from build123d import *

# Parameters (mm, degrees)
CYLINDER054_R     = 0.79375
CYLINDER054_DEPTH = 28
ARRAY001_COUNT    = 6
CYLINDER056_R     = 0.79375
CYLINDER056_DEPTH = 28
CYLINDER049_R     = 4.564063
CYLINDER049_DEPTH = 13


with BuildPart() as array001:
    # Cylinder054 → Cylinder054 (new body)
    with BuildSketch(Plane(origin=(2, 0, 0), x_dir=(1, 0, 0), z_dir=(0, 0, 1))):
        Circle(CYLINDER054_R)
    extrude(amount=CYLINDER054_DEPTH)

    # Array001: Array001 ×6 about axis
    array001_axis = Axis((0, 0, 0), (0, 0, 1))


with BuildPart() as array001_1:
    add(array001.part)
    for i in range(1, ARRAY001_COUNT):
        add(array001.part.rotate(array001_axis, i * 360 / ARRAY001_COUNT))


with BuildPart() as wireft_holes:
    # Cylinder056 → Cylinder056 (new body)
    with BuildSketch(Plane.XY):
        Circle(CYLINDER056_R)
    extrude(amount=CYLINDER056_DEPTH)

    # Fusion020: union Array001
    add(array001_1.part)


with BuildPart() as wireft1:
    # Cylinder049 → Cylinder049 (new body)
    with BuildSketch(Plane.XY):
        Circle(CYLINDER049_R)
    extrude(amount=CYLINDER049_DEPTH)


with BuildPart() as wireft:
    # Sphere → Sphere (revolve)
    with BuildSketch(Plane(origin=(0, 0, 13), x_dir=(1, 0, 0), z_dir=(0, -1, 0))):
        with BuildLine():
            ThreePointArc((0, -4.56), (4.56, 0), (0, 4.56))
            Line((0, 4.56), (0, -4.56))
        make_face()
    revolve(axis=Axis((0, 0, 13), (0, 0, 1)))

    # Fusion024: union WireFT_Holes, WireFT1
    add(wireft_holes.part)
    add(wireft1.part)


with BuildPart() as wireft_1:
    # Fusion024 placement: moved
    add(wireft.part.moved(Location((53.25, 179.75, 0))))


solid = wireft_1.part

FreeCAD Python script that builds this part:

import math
import FreeCAD as App
import Part
import Sketcher
from FreeCAD import Vector

doc = App.newDocument("Part")
params = doc.addObject("Spreadsheet::Sheet", "Params")
for row, (alias, value) in enumerate([
    ("pad1_length", "28 mm"),
    ("pad2_length", "28 mm"),
    ("pad3_length", "13 mm"),
    ("sketch4_radius", "4.56 mm"),
    ("revolution_angle", "360 deg"),
], start=1):
    params.set(f"A{row}", alias)
    params.set(f"B{row}", "=" + value)
    params.setAlias(f"B{row}", alias)

body = doc.addObject("PartDesign::Body", "Body")

# Sketch on XY plane
sketch1 = body.newObject("Sketcher::SketchObject", "Sketch")
sketch1.AttachmentSupport = (doc.getObject("XY_Plane"), [""])
sketch1.MapMode = "FlatFace"
sketch1.addGeometry(Part.Circle(Vector(2, 0, 0), Vector(0, 0, 1), 0.8), False)
sketch1.addConstraint([
    Sketcher.Constraint("PointOnObject", 0, 3, -1),
    Sketcher.Constraint("DistanceX", -1, 1, 0, 3, 2.0),
    Sketcher.Constraint("Diameter", 0, 1.5875),
])
pad1 = body.newObject("PartDesign::Pad", "Pad")
pad1.Profile = sketch1
pad1.setExpression("Length", "Params.pad1_length")
body2 = doc.addObject("PartDesign::Body", "Body001")
body2.AllowCompound = True
doc.recompute()

body2.BaseFeature = body
doc.recompute()

body3 = doc.addObject("PartDesign::Body", "Body002")
body3.BaseFeature = body
body3.Placement = App.Placement(Vector(0, 0, 0), App.Rotation(Vector(0, 0, 1), 60))
boolean = body2.newObject("PartDesign::Boolean", "Boolean")
boolean.Type = "Fuse"
boolean.addObjects([body3])
doc.recompute()

body4 = doc.addObject("PartDesign::Body", "Body003")
body4.BaseFeature = body
body4.Placement = App.Placement(Vector(0, 0, 0), App.Rotation(Vector(0, 0, 1), 120))
boolean2 = body2.newObject("PartDesign::Boolean", "Boolean001")
boolean2.Type = "Fuse"
boolean2.addObjects([body4])
doc.recompute()

body5 = doc.addObject("PartDesign::Body", "Body004")
body5.BaseFeature = body
body5.Placement = App.Placement(Vector(0, 0, 0), App.Rotation(Vector(0, 0, 1), 180))
boolean3 = body2.newObject("PartDesign::Boolean", "Boolean002")
boolean3.Type = "Fuse"
boolean3.addObjects([body5])
doc.recompute()

body6 = doc.addObject("PartDesign::Body", "Body005")
body6.BaseFeature = body
body6.Placement = App.Placement(Vector(0, 0, 0), App.Rotation(Vector(0, 0, 1), 240))
boolean4 = body2.newObject("PartDesign::Boolean", "Boolean003")
boolean4.Type = "Fuse"
boolean4.addObjects([body6])
doc.recompute()

body.Placement = App.Placement(Vector(0, 0, 0), App.Rotation(Vector(0, 0, 1), 300))
boolean5 = body2.newObject("PartDesign::Boolean", "Boolean004")
boolean5.Type = "Fuse"
boolean5.addObjects([body])
body7 = doc.addObject("PartDesign::Body", "Body006")
body7.AllowCompound = True

# Sketch on XY plane
sketch2 = body7.newObject("Sketcher::SketchObject", "Sketch001")
sketch2.AttachmentSupport = (doc.getObject("XY_Plane006"), [""])
sketch2.MapMode = "FlatFace"
sketch2.addGeometry(Part.Circle(Vector(0, 0, 0), Vector(0, 0, 1), 0.8), False)
sketch2.addConstraint([
    Sketcher.Constraint("Coincident", 0, 3, -1, 1),
    Sketcher.Constraint("Diameter", 0, 1.5875),
])
pad2 = body7.newObject("PartDesign::Pad", "Pad001")
pad2.Profile = sketch2
pad2.setExpression("Length", "Params.pad2_length")
doc.recompute()

boolean6 = body7.newObject("PartDesign::Boolean", "Boolean005")
boolean6.Type = "Fuse"
boolean6.addObjects([body2])
body8 = doc.addObject("PartDesign::Body", "Body007")

# Sketch on XY plane
sketch3 = body8.newObject("Sketcher::SketchObject", "Sketch002")
sketch3.AttachmentSupport = (doc.getObject("XY_Plane007"), [""])
sketch3.MapMode = "FlatFace"
sketch3.addGeometry(Part.Circle(Vector(0, 0, 0), Vector(0, 0, 1), 4.6), False)
sketch3.addConstraint([
    Sketcher.Constraint("Coincident", 0, 3, -1, 1),
    Sketcher.Constraint("Diameter", 0, 9.128126),
])
pad3 = body8.newObject("PartDesign::Pad", "Pad002")
pad3.Profile = sketch3
pad3.setExpression("Length", "Params.pad3_length")
body9 = doc.addObject("PartDesign::Body", "Body008")

# Sketch on XZ plane
sketch4 = body9.newObject("Sketcher::SketchObject", "Sketch003")
sketch4.AttachmentSupport = (doc.getObject("XZ_Plane008"), [""])
sketch4.MapMode = "FlatFace"
sketch4.addGeometry([
    Part.ArcOfCircle(Part.Circle(Vector(0, 13, 0), Vector(0, 0, 1), 4.6), math.radians(-90), math.radians(90)),
    Part.LineSegment(Vector(0, 17.6, 0), Vector(0, 8.4, 0)),
], False)
sketch4.addConstraint([
    Sketcher.Constraint("Coincident", 0, 1, 1, 2),
    Sketcher.Constraint("Coincident", 1, 1, 0, 2),
    Sketcher.Constraint("Vertical", 1),
    Sketcher.Constraint("PointOnObject", 0, 3, -2),
    Sketcher.Constraint("PointOnObject", 0, 1, -2),
    Sketcher.Constraint("Radius", 0, 4.56),
    Sketcher.Constraint("DistanceY", -1, 1, 0, 3, 13.0),
])
sketch4.setExpression("Constraints[5]", "Params.sketch4_radius")
revolution = body9.newObject("PartDesign::Revolution", "Revolution")
revolution.Profile = sketch4
revolution.ReferenceAxis = (sketch4, ["V_Axis"])
revolution.setExpression("Angle", "Params.revolution_angle")
doc.recompute()

boolean7 = body9.newObject("PartDesign::Boolean", "Boolean006")
boolean7.Type = "Fuse"
boolean7.addObjects([body7])
doc.recompute()

boolean8 = body9.newObject("PartDesign::Boolean", "Boolean007")
boolean8.Type = "Fuse"
boolean8.addObjects([body8])
body10 = doc.addObject("PartDesign::Body", "Body009")
doc.recompute()

body9.Placement = App.Placement(Vector(53.25, 179.75, 0), App.Rotation(Vector(0, 0, 1), 0))
boolean9 = body10.newObject("PartDesign::Boolean", "Boolean008")
boolean9.Type = "Fuse"
boolean9.addObjects([body9])

doc.recompute()
